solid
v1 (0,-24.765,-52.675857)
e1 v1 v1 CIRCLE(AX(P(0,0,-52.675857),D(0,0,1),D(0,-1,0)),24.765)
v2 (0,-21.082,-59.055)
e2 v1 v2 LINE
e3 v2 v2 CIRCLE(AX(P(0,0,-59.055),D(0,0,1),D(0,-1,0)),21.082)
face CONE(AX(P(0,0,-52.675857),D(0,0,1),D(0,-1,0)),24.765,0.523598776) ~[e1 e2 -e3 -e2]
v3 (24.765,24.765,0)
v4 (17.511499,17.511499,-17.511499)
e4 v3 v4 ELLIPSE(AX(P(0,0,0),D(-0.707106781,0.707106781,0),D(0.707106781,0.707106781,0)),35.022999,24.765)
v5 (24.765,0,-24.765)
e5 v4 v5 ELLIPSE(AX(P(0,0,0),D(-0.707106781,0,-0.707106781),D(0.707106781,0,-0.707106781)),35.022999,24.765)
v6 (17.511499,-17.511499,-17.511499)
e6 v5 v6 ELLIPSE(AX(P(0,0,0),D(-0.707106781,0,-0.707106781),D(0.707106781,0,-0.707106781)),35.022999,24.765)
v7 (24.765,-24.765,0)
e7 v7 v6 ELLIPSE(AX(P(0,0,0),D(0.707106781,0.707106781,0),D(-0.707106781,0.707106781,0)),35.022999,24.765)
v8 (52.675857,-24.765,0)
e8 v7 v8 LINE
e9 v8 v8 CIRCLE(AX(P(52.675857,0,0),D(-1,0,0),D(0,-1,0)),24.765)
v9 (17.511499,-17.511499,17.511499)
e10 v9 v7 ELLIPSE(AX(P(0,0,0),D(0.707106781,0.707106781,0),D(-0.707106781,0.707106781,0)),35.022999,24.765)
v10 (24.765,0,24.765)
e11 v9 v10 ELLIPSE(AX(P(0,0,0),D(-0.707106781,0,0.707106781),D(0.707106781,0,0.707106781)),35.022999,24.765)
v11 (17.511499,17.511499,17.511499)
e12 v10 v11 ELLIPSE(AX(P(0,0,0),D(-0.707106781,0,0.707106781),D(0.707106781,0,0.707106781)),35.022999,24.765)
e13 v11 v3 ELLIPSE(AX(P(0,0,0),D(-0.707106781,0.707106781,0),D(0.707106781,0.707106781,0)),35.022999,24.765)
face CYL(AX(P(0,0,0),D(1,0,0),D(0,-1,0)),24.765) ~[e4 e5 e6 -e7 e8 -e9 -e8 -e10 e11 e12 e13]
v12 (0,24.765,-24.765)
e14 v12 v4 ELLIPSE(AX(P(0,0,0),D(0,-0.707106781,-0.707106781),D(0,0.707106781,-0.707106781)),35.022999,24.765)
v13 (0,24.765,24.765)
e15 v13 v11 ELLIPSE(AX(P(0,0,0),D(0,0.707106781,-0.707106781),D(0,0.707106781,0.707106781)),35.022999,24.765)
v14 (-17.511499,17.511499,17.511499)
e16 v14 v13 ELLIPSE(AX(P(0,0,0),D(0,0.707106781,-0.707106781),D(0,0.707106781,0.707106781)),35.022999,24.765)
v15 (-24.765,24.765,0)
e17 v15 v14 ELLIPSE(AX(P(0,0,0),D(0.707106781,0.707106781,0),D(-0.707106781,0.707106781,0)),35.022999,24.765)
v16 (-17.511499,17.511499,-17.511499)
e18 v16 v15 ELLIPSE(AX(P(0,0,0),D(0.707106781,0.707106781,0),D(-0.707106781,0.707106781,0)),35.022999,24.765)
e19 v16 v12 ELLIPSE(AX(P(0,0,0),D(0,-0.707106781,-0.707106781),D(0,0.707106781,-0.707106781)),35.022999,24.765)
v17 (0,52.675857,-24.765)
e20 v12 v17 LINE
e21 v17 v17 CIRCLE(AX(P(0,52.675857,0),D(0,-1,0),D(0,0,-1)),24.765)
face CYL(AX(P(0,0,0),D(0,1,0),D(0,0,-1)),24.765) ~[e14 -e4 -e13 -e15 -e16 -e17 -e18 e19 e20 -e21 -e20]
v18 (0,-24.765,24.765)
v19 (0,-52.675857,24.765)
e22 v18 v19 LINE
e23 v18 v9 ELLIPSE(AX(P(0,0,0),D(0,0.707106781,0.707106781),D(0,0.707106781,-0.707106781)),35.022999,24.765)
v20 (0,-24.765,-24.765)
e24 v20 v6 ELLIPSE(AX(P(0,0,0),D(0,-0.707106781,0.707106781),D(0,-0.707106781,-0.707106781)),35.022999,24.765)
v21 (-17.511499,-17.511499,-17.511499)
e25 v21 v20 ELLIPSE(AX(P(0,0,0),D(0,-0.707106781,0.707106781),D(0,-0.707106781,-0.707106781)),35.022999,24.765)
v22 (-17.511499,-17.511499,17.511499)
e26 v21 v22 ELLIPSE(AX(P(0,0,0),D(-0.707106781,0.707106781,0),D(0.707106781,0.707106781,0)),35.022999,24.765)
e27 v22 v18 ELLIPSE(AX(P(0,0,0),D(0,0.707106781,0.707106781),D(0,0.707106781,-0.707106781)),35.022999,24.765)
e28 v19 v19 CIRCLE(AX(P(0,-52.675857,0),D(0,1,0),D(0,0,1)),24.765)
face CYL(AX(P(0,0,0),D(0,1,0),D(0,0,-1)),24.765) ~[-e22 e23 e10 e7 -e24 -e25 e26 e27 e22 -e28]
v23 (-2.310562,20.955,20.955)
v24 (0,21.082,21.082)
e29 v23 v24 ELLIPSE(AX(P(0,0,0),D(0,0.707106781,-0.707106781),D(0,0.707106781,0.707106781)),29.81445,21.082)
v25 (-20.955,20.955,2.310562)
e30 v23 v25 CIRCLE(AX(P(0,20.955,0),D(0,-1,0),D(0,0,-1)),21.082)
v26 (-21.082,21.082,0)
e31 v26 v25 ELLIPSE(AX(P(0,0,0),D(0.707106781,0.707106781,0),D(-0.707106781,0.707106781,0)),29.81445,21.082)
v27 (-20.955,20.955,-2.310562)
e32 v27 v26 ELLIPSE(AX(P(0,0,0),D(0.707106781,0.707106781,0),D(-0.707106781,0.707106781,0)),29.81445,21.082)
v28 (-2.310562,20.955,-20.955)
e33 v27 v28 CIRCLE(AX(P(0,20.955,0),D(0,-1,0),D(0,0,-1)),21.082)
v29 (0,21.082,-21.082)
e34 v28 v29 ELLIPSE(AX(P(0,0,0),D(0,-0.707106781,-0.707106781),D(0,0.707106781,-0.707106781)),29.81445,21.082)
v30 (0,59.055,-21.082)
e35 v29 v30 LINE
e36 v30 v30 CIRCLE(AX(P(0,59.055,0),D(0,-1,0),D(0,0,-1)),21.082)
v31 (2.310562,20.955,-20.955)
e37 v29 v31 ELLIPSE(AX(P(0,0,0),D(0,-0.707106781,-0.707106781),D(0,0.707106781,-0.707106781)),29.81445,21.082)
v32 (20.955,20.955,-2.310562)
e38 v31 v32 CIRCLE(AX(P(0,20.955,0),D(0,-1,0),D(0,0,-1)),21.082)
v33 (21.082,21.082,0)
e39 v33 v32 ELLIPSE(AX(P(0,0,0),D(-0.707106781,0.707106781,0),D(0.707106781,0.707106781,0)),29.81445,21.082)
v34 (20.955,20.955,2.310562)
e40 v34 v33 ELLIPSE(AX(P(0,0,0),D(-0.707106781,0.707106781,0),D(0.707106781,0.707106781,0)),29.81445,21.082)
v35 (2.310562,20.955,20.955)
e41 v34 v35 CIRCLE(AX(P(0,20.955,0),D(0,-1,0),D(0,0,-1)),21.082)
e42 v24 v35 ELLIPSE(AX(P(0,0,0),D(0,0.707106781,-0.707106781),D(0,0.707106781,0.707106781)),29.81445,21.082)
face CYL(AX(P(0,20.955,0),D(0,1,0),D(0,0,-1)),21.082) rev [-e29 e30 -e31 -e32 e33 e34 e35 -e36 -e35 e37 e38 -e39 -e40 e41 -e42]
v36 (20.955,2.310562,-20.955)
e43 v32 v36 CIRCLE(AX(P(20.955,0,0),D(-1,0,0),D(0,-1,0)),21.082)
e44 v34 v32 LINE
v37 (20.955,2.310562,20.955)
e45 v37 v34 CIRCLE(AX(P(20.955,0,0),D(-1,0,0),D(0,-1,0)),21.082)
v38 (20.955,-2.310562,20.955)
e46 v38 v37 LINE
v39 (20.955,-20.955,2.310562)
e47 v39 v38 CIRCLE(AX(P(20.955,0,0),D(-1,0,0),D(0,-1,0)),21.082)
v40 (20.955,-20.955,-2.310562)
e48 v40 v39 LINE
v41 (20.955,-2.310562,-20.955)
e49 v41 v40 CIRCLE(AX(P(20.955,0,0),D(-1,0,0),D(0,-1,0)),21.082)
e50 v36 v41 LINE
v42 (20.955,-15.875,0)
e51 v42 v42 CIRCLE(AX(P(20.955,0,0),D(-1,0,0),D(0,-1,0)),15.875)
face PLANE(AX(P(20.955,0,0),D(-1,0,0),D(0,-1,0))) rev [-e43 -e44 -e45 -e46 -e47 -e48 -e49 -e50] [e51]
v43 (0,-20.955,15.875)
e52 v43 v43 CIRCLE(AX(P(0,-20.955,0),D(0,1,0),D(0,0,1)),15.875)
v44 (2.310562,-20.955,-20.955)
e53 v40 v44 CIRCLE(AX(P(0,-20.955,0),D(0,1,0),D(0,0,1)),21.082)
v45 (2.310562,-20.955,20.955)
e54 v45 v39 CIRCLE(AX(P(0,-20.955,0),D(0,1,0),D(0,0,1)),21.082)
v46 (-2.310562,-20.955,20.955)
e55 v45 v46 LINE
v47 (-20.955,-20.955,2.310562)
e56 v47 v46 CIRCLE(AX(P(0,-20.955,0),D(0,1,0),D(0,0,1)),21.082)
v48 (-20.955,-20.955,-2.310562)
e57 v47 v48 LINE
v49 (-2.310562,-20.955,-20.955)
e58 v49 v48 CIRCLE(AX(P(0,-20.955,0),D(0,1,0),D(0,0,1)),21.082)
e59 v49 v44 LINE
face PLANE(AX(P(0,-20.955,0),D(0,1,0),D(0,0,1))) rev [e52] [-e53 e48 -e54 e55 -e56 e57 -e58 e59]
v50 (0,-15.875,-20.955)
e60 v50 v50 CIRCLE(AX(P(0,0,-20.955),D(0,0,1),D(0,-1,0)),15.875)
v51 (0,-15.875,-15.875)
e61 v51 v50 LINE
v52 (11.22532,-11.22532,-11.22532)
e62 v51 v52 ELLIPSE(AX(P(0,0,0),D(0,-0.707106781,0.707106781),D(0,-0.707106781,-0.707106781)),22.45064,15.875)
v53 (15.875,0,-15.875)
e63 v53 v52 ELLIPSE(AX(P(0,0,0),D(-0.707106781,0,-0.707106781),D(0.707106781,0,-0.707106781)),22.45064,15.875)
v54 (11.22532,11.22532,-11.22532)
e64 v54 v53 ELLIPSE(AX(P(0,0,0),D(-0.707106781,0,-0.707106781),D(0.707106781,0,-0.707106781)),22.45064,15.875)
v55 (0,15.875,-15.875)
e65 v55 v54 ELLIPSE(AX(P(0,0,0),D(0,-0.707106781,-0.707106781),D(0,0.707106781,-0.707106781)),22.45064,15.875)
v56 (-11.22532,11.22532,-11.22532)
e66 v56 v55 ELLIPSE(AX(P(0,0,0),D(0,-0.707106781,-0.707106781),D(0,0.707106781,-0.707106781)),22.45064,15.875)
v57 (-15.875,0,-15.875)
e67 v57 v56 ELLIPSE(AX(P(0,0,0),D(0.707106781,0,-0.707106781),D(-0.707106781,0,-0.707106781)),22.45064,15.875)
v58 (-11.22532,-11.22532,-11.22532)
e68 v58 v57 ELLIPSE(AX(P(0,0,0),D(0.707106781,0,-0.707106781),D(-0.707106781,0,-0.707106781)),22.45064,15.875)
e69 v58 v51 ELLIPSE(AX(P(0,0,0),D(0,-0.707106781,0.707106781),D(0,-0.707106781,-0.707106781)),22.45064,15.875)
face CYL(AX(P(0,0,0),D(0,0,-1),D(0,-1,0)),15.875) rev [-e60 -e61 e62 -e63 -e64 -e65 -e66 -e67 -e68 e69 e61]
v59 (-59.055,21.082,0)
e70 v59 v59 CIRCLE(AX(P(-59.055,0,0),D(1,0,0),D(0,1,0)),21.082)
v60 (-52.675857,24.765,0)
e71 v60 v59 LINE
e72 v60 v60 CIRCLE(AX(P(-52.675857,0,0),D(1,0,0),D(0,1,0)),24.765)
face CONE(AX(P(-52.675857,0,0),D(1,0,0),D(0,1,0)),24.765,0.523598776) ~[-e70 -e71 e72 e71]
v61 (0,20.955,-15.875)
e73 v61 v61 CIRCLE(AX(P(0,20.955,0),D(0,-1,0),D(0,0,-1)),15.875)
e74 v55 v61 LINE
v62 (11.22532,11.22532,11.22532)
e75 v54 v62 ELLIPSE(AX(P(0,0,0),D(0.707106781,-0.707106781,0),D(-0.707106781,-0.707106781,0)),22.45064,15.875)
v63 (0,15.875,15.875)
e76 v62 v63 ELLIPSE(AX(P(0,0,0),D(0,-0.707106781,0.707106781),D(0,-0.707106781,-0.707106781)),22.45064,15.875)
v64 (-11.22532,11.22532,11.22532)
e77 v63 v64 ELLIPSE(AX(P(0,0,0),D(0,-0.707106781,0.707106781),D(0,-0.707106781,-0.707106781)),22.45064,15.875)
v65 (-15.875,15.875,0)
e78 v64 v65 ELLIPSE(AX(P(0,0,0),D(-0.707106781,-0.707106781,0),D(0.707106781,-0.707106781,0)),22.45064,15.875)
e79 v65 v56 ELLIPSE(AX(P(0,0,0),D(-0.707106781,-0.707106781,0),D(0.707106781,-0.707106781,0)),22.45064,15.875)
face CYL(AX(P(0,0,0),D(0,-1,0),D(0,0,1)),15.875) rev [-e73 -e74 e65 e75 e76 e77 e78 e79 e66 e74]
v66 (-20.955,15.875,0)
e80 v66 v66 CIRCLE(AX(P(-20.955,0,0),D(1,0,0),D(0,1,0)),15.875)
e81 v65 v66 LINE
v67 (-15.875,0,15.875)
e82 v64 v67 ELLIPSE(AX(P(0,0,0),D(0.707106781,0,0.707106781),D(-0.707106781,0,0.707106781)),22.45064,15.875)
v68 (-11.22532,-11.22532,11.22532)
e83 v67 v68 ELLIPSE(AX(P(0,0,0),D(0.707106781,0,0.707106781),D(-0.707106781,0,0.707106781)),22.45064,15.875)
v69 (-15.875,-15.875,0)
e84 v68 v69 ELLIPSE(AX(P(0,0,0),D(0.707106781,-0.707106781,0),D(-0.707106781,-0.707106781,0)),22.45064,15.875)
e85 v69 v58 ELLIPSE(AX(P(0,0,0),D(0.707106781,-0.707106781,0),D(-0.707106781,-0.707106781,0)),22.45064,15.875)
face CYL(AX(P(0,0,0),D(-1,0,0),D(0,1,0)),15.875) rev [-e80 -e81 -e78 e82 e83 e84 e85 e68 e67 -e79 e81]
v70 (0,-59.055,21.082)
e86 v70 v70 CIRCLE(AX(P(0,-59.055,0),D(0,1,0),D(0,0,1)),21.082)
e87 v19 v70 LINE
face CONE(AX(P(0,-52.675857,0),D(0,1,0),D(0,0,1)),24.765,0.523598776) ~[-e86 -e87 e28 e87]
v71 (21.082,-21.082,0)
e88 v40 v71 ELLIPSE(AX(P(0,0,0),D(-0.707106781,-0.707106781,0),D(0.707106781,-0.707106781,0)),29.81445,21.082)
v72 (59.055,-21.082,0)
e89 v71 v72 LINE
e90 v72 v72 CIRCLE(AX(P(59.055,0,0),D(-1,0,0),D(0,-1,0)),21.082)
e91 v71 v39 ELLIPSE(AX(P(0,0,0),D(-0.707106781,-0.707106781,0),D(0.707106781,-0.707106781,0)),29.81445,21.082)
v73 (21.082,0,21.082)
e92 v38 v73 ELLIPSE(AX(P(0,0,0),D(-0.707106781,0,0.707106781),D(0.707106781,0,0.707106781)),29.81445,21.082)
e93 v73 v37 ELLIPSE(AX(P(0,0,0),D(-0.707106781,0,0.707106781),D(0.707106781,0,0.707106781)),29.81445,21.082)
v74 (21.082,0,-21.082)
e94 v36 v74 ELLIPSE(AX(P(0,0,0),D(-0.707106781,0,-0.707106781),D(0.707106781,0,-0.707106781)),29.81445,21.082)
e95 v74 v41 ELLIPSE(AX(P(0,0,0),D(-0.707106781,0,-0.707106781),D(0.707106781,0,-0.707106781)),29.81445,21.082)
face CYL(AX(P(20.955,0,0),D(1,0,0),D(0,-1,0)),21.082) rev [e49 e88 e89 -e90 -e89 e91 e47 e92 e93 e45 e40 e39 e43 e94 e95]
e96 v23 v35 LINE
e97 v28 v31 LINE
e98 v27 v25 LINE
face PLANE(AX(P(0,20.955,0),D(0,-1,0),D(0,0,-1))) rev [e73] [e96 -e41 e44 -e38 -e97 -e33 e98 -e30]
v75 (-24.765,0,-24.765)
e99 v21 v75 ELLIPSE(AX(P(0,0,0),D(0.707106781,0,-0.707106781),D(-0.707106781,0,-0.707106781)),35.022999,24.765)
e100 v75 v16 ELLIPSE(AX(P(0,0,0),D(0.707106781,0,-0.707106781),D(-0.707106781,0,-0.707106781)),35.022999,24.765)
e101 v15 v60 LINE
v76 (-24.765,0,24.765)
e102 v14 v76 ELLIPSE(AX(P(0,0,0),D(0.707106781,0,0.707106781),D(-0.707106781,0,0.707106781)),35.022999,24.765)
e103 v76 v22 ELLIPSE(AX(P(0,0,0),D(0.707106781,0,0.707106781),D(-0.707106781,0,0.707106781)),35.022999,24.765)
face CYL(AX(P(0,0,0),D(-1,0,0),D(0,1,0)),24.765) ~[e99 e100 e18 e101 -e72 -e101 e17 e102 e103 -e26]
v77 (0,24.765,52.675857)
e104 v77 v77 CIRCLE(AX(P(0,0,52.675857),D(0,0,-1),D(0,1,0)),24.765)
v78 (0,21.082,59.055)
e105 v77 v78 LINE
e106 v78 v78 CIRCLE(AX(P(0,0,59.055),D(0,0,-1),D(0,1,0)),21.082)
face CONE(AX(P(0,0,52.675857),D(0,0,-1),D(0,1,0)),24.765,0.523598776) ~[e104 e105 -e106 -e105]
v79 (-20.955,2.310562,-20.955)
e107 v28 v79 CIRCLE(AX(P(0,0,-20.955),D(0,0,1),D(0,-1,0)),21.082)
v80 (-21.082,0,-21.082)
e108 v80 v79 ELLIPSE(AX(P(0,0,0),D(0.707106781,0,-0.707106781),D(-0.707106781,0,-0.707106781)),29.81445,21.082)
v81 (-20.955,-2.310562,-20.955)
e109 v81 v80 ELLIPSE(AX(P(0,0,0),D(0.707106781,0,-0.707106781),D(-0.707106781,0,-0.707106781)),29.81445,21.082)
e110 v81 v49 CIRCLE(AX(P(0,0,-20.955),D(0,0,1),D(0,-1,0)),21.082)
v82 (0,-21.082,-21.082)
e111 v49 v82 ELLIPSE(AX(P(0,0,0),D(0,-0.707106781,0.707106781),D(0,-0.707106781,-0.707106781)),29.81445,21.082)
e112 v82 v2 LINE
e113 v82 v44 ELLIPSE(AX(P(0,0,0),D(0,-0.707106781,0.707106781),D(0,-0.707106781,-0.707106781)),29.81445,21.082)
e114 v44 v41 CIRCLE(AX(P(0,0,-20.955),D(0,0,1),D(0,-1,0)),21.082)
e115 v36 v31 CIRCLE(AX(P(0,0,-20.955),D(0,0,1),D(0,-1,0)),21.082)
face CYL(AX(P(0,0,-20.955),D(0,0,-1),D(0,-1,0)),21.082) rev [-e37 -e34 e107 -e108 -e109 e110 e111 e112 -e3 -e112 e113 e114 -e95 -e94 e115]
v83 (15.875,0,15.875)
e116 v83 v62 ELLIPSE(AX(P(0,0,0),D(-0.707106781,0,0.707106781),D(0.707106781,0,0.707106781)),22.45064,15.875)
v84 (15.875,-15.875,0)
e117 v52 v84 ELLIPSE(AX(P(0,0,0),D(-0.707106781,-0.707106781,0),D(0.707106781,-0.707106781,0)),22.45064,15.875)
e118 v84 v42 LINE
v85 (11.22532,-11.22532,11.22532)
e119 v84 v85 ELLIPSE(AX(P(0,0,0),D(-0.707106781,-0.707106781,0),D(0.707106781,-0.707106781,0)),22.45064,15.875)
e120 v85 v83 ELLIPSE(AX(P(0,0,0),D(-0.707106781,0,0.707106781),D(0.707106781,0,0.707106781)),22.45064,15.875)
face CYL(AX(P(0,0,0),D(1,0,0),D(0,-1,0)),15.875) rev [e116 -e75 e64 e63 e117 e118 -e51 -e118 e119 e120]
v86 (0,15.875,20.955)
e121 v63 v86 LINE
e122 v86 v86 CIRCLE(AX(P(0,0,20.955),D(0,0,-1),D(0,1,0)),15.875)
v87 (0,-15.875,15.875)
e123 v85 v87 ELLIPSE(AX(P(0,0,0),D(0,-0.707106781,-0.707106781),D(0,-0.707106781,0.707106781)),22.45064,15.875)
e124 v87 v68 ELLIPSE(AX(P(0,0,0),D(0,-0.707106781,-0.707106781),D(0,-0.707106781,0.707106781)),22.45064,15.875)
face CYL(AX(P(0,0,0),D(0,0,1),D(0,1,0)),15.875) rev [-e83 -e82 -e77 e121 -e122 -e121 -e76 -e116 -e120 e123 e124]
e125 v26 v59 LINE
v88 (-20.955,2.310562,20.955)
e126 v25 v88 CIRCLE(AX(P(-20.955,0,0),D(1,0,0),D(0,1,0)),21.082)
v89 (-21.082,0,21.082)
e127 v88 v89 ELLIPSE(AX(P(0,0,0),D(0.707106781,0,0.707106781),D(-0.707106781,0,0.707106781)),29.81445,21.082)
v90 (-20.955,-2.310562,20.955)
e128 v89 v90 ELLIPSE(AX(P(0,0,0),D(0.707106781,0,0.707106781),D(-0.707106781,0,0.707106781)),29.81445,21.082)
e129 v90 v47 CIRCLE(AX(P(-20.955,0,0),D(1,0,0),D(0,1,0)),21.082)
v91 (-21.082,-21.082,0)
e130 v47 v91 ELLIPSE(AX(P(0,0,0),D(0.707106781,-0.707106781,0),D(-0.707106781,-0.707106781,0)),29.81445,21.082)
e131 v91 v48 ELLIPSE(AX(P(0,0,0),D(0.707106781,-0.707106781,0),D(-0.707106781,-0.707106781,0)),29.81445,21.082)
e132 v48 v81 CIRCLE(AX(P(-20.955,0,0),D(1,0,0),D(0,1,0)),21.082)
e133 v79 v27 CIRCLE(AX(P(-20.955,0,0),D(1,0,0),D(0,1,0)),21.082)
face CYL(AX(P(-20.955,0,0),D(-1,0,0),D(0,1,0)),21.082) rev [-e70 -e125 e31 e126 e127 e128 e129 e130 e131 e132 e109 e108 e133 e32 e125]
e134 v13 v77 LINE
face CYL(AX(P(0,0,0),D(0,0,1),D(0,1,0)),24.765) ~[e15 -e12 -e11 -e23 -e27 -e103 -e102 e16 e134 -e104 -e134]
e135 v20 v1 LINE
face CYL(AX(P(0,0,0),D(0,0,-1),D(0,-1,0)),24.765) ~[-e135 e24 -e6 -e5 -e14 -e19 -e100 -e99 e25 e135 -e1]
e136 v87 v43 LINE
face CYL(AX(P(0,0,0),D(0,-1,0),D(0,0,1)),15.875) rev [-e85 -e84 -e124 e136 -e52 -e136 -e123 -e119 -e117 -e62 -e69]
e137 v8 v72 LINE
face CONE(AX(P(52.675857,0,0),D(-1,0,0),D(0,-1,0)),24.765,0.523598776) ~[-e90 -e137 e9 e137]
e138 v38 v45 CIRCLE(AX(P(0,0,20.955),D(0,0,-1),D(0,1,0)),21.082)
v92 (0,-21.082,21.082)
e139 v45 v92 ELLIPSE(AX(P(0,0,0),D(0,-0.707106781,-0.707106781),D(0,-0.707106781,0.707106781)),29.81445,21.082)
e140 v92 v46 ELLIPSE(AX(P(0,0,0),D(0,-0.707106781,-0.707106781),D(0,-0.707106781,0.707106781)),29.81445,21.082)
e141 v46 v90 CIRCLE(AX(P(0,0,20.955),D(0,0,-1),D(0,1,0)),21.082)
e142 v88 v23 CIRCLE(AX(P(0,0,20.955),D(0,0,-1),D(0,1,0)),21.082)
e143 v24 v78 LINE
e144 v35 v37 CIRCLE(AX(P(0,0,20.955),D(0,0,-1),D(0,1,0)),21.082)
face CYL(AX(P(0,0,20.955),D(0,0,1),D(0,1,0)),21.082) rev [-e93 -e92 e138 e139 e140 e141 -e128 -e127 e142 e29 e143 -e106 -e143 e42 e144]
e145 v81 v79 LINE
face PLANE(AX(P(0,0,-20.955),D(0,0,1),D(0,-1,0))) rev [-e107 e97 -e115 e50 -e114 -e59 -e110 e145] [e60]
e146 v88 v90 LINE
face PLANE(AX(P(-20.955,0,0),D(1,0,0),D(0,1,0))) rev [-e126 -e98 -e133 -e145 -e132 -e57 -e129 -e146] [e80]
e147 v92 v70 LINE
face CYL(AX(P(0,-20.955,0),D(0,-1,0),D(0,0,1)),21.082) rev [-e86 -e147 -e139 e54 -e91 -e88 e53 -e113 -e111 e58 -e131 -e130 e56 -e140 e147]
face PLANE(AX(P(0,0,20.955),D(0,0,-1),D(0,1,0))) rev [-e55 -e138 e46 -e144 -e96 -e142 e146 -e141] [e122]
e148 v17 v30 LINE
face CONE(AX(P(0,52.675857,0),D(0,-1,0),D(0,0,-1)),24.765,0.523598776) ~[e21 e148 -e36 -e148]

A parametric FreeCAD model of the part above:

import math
import FreeCAD as App
import Part
import Sketcher
Q = App.Units.Quantity

doc = App.newDocument("Part")
body = doc.addObject("PartDesign::Body", "Body")

sketch1 = body.newObject("Sketcher::SketchObject", "Sketch")
sketch1.AttachmentSupport = (doc.getObject("YZ_Plane"), [""])
sketch1.MapMode = "FlatFace"
sketch1.addGeometry([
    Part.LineSegment(App.Vector(-53, 25, 0), App.Vector(-59, 21, 0)),
    Part.LineSegment(App.Vector(-59, 21, 0), App.Vector(-59, 0, 0)),
    Part.LineSegment(App.Vector(-59, 0, 0), App.Vector(25, 0, 0)),
    Part.ArcOfCircle(Part.Circle(App.Vector(0, 0, 0), App.Vector(0, 0, 1), 25), math.radians(0), math.radians(90)),
    Part.LineSegment(App.Vector(0, 25, 0), App.Vector(-53, 25, 0)),
], False)
sketch1.addConstraint([
    Sketcher.Constraint("Coincident", 0, 2, 1, 1),
    Sketcher.Constraint("Coincident", 1, 2, 2, 1),
    Sketcher.Constraint("Coincident", 2, 2, 3, 1),
    Sketcher.Constraint("Tangent", 3, 2, 4, 1),
    Sketcher.Constraint("Coincident", 4, 2, 0, 1),
    Sketcher.Constraint("Vertical", 1),
    Sketcher.Constraint("Horizontal", 2),
    Sketcher.Constraint("Horizontal", 4),
    Sketcher.Constraint("Coincident", 3, 3, -1, 1),
    Sketcher.Constraint("PointOnObject", 1, 2, -1),
    Sketcher.Constraint("DistanceX", 2, 1, 2, 2, Q("3.3 in")),
    Sketcher.Constraint("Angle", 0, Q("-150 deg")),
    Sketcher.Constraint("Radius", 3, Q("0.975 in")),
    Sketcher.Constraint("DistanceY", 1, 2, 1, 1, Q("0.83 in")),
])
revolution = body.newObject("PartDesign::Revolution", "Revolution")
revolution.Profile = sketch1
revolution.ReferenceAxis = (sketch1, ["H_Axis"])
revolution.Angle = 360

sketch2 = body.newObject("Sketcher::SketchObject", "Sketch001")
sketch2.AttachmentSupport = (doc.getObject("YZ_Plane"), [""])
sketch2.MapMode = "FlatFace"
sketch2.addGeometry([
    Part.LineSegment(App.Vector(-25, -53, 0), App.Vector(-21, -59, 0)),
    Part.LineSegment(App.Vector(-21, -59, 0), App.Vector(0, -59, 0)),
    Part.LineSegment(App.Vector(0, -59, 0), App.Vector(0, 25, 0)),
    Part.ArcOfCircle(Part.Circle(App.Vector(0, 0, 0), App.Vector(0, 0, 1), 25), math.radians(90), math.radians(180)),
    Part.LineSegment(App.Vector(-25, 0, 0), App.Vector(-25, -53, 0)),
], False)
sketch2.addConstraint([
    Sketcher.Constraint("Coincident", 0, 2, 1, 1),
    Sketcher.Constraint("Coincident", 1, 2, 2, 1),
    Sketcher.Constraint("Coincident", 2, 2, 3, 1),
    Sketcher.Constraint("Tangent", 3, 2, 4, 1),
    Sketcher.Constraint("Coincident", 4, 2, 0, 1),
    Sketcher.Constraint("Horizontal", 1),
    Sketcher.Constraint("Vertical", 2),
    Sketcher.Constraint("Vertical", 4),
    Sketcher.Constraint("Coincident", 3, 3, -1, 1),
    Sketcher.Constraint("PointOnObject", 1, 2, -2),
    Sketcher.Constraint("DistanceY", 2, 1, 2, 2, Q("3.3 in")),
    Sketcher.Constraint("Angle", 0, Q("-60 deg")),
    Sketcher.Constraint("Radius", 3, Q("0.975 in")),
    Sketcher.Constraint("DistanceX", 1, 1, 1, 2, Q("0.83 in")),
])
revolution2 = body.newObject("PartDesign::Revolution", "Revolution001")
revolution2.Profile = sketch2
revolution2.ReferenceAxis = (sketch2, ["V_Axis"])
revolution2.Angle = 360

sketch3 = body.newObject("Sketcher::SketchObject", "Sketch002")
sketch3.AttachmentSupport = (doc.getObject("YZ_Plane"), [""])
sketch3.MapMode = "FlatFace"
sketch3.addGeometry([
    Part.LineSegment(App.Vector(53, -25, 0), App.Vector(59, -21, 0)),
    Part.LineSegment(App.Vector(59, -21, 0), App.Vector(59, 0, 0)),
    Part.LineSegment(App.Vector(59, 0, 0), App.Vector(-25, 0, 0)),
    Part.ArcOfCircle(Part.Circle(App.Vector(0, 0, 0), App.Vector(0, 0, 1), 25), math.radians(180), math.radians(270)),
    Part.LineSegment(App.Vector(0, -25, 0), App.Vector(53, -25, 0)),
], False)
sketch3.addConstraint([
    Sketcher.Constraint("Coincident", 0, 2, 1, 1),
    Sketcher.Constraint("Coincident", 1, 2, 2, 1),
    Sketcher.Constraint("Coincident", 2, 2, 3, 1),
    Sketcher.Constraint("Tangent", 3, 2, 4, 1),
    Sketcher.Constraint("Coincident", 4, 2, 0, 1),
    Sketcher.Constraint("Vertical", 1),
    Sketcher.Constraint("Horizontal", 2),
    Sketcher.Constraint("Horizontal", 4),
    Sketcher.Constraint("Coincident", 3, 3, -1, 1),
    Sketcher.Constraint("PointOnObject", 1, 2, -1),
    Sketcher.Constraint("DistanceX", 2, 2, 2, 1, Q("3.3 in")),
    Sketcher.Constraint("Angle", 0, Q("30 deg")),
    Sketcher.Constraint("Radius", 3, Q("0.975 in")),
    Sketcher.Constraint("DistanceY", 1, 1, 1, 2, Q("0.83 in")),
])
revolution3 = body.newObject("PartDesign::Revolution", "Revolution002")
revolution3.Profile = sketch3
revolution3.ReferenceAxis = (sketch3, ["H_Axis"])
revolution3.Angle = 360

sketch4 = body.newObject("Sketcher::SketchObject", "Sketch003")
sketch4.AttachmentSupport = (doc.getObject("YZ_Plane"), [""])
sketch4.MapMode = "FlatFace"
sketch4.addGeometry([
    Part.LineSegment(App.Vector(25, 53, 0), App.Vector(21, 59, 0)),
    Part.LineSegment(App.Vector(21, 59, 0), App.Vector(0, 59, 0)),
    Part.LineSegment(App.Vector(0, 59, 0), App.Vector(0, -25, 0)),
    Part.ArcOfCircle(Part.Circle(App.Vector(0, 0, 0), App.Vector(0, 0, 1), 25), math.radians(-90), math.radians(0)),
    Part.LineSegment(App.Vector(25, 0, 0), App.Vector(25, 53, 0)),
], False)
sketch4.addConstraint([
    Sketcher.Constraint("Coincident", 0, 2, 1, 1),
    Sketcher.Constraint("Coincident", 1, 2, 2, 1),
    Sketcher.Constraint("Coincident", 2, 2, 3, 1),
    Sketcher.Constraint("Tangent", 3, 2, 4, 1),
    Sketcher.Constraint("Coincident", 4, 2, 0, 1),
    Sketcher.Constraint("Horizontal", 1),
    Sketcher.Constraint("Vertical", 2),
    Sketcher.Constraint("Vertical", 4),
    Sketcher.Constraint("Coincident", 3, 3, -1, 1),
    Sketcher.Constraint("PointOnObject", 1, 2, -2),
    Sketcher.Constraint("DistanceY", 2, 2, 2, 1, Q("3.3 in")),
    Sketcher.Constraint("Angle", 0, Q("120 deg")),
    Sketcher.Constraint("Radius", 3, Q("0.975 in")),
    Sketcher.Constraint("DistanceX", 1, 2, 1, 1, Q("0.83 in")),
])
revolution4 = body.newObject("PartDesign::Revolution", "Revolution003")
revolution4.Profile = sketch4
revolution4.ReferenceAxis = (sketch4, ["V_Axis"])
revolution4.Angle = 360

sketch5 = body.newObject("Sketcher::SketchObject", "Sketch004")
sketch5.AttachmentSupport = (doc.getObject("XY_Plane"), [""])
sketch5.MapMode = "FlatFace"
sketch5.addGeometry([
    Part.LineSegment(App.Vector(-53, 25, 0), App.Vector(-59, 21, 0)),
    Part.LineSegment(App.Vector(-59, 21, 0), App.Vector(-59, 0, 0)),
    Part.LineSegment(App.Vector(-59, 0, 0), App.Vector(25, 0, 0)),
    Part.ArcOfCircle(Part.Circle(App.Vector(0, 0, 0), App.Vector(0, 0, 1), 25), math.radians(0), math.radians(90)),
    Part.LineSegment(App.Vector(0, 25, 0), App.Vector(-53, 25, 0)),
], False)
sketch5.addConstraint([
    Sketcher.Constraint("Coincident", 0, 2, 1, 1),
    Sketcher.Constraint("Coincident", 1, 2, 2, 1),
    Sketcher.Constraint("Coincident", 2, 2, 3, 1),
    Sketcher.Constraint("Tangent", 3, 2, 4, 1),
    Sketcher.Constraint("Coincident", 4, 2, 0, 1),
    Sketcher.Constraint("Vertical", 1),
    Sketcher.Constraint("Horizontal", 2),
    Sketcher.Constraint("Horizontal", 4),
    Sketcher.Constraint("Coincident", 3, 3, -1, 1),
    Sketcher.Constraint("PointOnObject", 1, 2, -1),
    Sketcher.Constraint("DistanceX", 2, 1, 2, 2, Q("3.3 in")),
    Sketcher.Constraint("Angle", 0, Q("-150 deg")),
    Sketcher.Constraint("Radius", 3, Q("0.975 in")),
    Sketcher.Constraint("DistanceY", 1, 2, 1, 1, Q("0.83 in")),
])
revolution5 = body.newObject("PartDesign::Revolution", "Revolution004")
revolution5.Profile = sketch5
revolution5.ReferenceAxis = (sketch5, ["H_Axis"])
revolution5.Angle = 360

sketch6 = body.newObject("Sketcher::SketchObject", "Sketch005")
sketch6.AttachmentSupport = (doc.getObject("XY_Plane"), [""])
sketch6.MapMode = "FlatFace"
sketch6.addGeometry([
    Part.LineSegment(App.Vector(53, -25, 0), App.Vector(59, -21, 0)),
    Part.LineSegment(App.Vector(59, -21, 0), App.Vector(59, 0, 0)),
    Part.LineSegment(App.Vector(59, 0, 0), App.Vector(-25, 0, 0)),
    Part.ArcOfCircle(Part.Circle(App.Vector(0, 0, 0), App.Vector(0, 0, 1), 25), math.radians(180), math.radians(270)),
    Part.LineSegment(App.Vector(0, -25, 0), App.Vector(53, -25, 0)),
], False)
sketch6.addConstraint([
    Sketcher.Constraint("Coincident", 0, 2, 1, 1),
    Sketcher.Constraint("Coincident", 1, 2, 2, 1),
    Sketcher.Constraint("Coincident", 2, 2, 3, 1),
    Sketcher.Constraint("Tangent", 3, 2, 4, 1),
    Sketcher.Constraint("Coincident", 4, 2, 0, 1),
    Sketcher.Constraint("Vertical", 1),
    Sketcher.Constraint("Horizontal", 2),
    Sketcher.Constraint("Horizontal", 4),
    Sketcher.Constraint("Coincident", 3, 3, -1, 1),
    Sketcher.Constraint("PointOnObject", 1, 2, -1),
    Sketcher.Constraint("DistanceX", 2, 2, 2, 1, Q("3.3 in")),
    Sketcher.Constraint("Angle", 0, Q("30 deg")),
    Sketcher.Constraint("Radius", 3, Q("0.975 in")),
    Sketcher.Constraint("DistanceY", 1, 1, 1, 2, Q("0.83 in")),
])
revolution6 = body.newObject("PartDesign::Revolution", "Revolution005")
revolution6.Profile = sketch6
revolution6.ReferenceAxis = (sketch6, ["H_Axis"])
revolution6.Angle = 360

sketch7 = body.newObject("Sketcher::SketchObject", "Sketch006")
sketch7.AttachmentSupport = (doc.getObject("YZ_Plane"), [""])
sketch7.MapMode = "FlatFace"
sketch7.addGeometry([
    Part.LineSegment(App.Vector(-21, 21, 0), App.Vector(-59, 21, 0)),
    Part.LineSegment(App.Vector(-59, 21, 0), App.Vector(-59, 0, 0)),
    Part.LineSegment(App.Vector(-59, 0, 0), App.Vector(16, 0, 0)),
    Part.ArcOfCircle(Part.Circle(App.Vector(0, 0, 0), App.Vector(0, 0, 1), 16), math.radians(0), math.radians(90)),
    Part.LineSegment(App.Vector(0, 16, 0), App.Vector(-21, 16, 0)),
    Part.LineSegment(App.Vector(-21, 16, 0), App.Vector(-21, 21, 0)),
], False)
sketch7.addConstraint([
    Sketcher.Constraint("Coincident", 0, 2, 1, 1),
    Sketcher.Constraint("Coincident", 1, 2, 2, 1),
    Sketcher.Constraint("Coincident", 2, 2, 3, 1),
    Sketcher.Constraint("Tangent", 3, 2, 4, 1),
    Sketcher.Constraint("Coincident", 4, 2, 5, 1),
    Sketcher.Constraint("Coincident", 5, 2, 0, 1),
    Sketcher.Constraint("Horizontal", 0),
    Sketcher.Constraint("Vertical", 1),
    Sketcher.Constraint("Horizontal", 2),
    Sketcher.Constraint("Horizontal", 4),
    Sketcher.Constraint("Vertical", 5),
    Sketcher.Constraint("Coincident", 3, 3, -1, 1),
    Sketcher.Constraint("PointOnObject", 1, 2, -1),
    Sketcher.Constraint("DistanceX", 0, 2, 0, 1, Q("1.5 in")),
    Sketcher.Constraint("Radius", 3, Q("0.625 in")),
    Sketcher.Constraint("DistanceX", 2, 1, 2, 2, Q("2.95 in")),
    Sketcher.Constraint("DistanceY", 1, 2, 1, 1, Q("0.83 in")),
])
groove = body.newObject("PartDesign::Groove", "Groove")
groove.Profile = sketch7
groove.ReferenceAxis = (sketch7, ["H_Axis"])
groove.Angle = 360

sketch8 = body.newObject("Sketcher::SketchObject", "Sketch007")
sketch8.AttachmentSupport = (doc.getObject("YZ_Plane"), [""])
sketch8.MapMode = "FlatFace"
sketch8.addGeometry([
    Part.LineSegment(App.Vector(-21, -21, 0), App.Vector(-21, -59, 0)),
    Part.LineSegment(App.Vector(-21, -59, 0), App.Vector(0, -59, 0)),
    Part.LineSegment(App.Vector(0, -59, 0), App.Vector(0, 16, 0)),
    Part.ArcOfCircle(Part.Circle(App.Vector(0, 0, 0), App.Vector(0, 0, 1), 16), math.radians(90), math.radians(180)),
    Part.LineSegment(App.Vector(-16, 0, 0), App.Vector(-16, -21, 0)),
    Part.LineSegment(App.Vector(-16, -21, 0), App.Vector(-21, -21, 0)),
], False)
sketch8.addConstraint([
    Sketcher.Constraint("Coincident", 0, 2, 1, 1),
    Sketcher.Constraint("Coincident", 1, 2, 2, 1),
    Sketcher.Constraint("Coincident", 2, 2, 3, 1),
    Sketcher.Constraint("Tangent", 3, 2, 4, 1),
    Sketcher.Constraint("Coincident", 4, 2, 5, 1),
    Sketcher.Constraint("Coincident", 5, 2, 0, 1),
    Sketcher.Constraint("Vertical", 0),
    Sketcher.Constraint("Horizontal", 1),
    Sketcher.Constraint("Vertical", 2),
    Sketcher.Constraint("Vertical", 4),
    Sketcher.Constraint("Horizontal", 5),
    Sketcher.Constraint("Coincident", 3, 3, -1, 1),
    Sketcher.Constraint("PointOnObject", 1, 2, -2),
    Sketcher.Constraint("DistanceY", 0, 2, 0, 1, Q("1.5 in")),
    Sketcher.Constraint("Radius", 3, Q("0.625 in")),
    Sketcher.Constraint("DistanceX", 1, 1, 1, 2, Q("0.83 in")),
    Sketcher.Constraint("DistanceY", 2, 1, 2, 2, Q("2.95 in")),
])
groove2 = body.newObject("PartDesign::Groove", "Groove001")
groove2.Profile = sketch8
groove2.ReferenceAxis = (sketch8, ["V_Axis"])
groove2.Angle = 360

sketch9 = body.newObject("Sketcher::SketchObject", "Sketch008")
sketch9.AttachmentSupport = (doc.getObject("YZ_Plane"), [""])
sketch9.MapMode = "FlatFace"
sketch9.addGeometry([
    Part.LineSegment(App.Vector(21, -21, 0), App.Vector(59, -21, 0)),
    Part.LineSegment(App.Vector(59, -21, 0), App.Vector(59, 0, 0)),
    Part.LineSegment(App.Vector(59, 0, 0), App.Vector(-16, 0, 0)),
    Part.ArcOfCircle(Part.Circle(App.Vector(0, 0, 0), App.Vector(0, 0, 1), 16), math.radians(180), math.radians(270)),
    Part.LineSegment(App.Vector(0, -16, 0), App.Vector(21, -16, 0)),
    Part.LineSegment(App.Vector(21, -16, 0), App.Vector(21, -21, 0)),
], False)
sketch9.addConstraint([
    Sketcher.Constraint("Coincident", 0, 2, 1, 1),
    Sketcher.Constraint("Coincident", 1, 2, 2, 1),
    Sketcher.Constraint("Coincident", 2, 2, 3, 1),
    Sketcher.Constraint("Tangent", 3, 2, 4, 1),
    Sketcher.Constraint("Coincident", 4, 2, 5, 1),
    Sketcher.Constraint("Coincident", 5, 2, 0, 1),
    Sketcher.Constraint("Horizontal", 0),
    Sketcher.Constraint("Vertical", 1),
    Sketcher.Constraint("Horizontal", 2),
    Sketcher.Constraint("Horizontal", 4),
    Sketcher.Constraint("Vertical", 5),
    Sketcher.Constraint("Coincident", 3, 3, -1, 1),
    Sketcher.Constraint("PointOnObject", 1, 2, -1),
    Sketcher.Constraint("DistanceX", 0, 1, 0, 2, Q("1.5 in")),
    Sketcher.Constraint("Radius", 3, Q("0.625 in")),
    Sketcher.Constraint("DistanceX", 2, 2, 2, 1, Q("2.95 in")),
    Sketcher.Constraint("DistanceY", 1, 1, 1, 2, Q("0.83 in")),
])
groove3 = body.newObject("PartDesign::Groove", "Groove002")
groove3.Profile = sketch9
groove3.ReferenceAxis = (sketch9, ["H_Axis"])
groove3.Angle = 360

sketch10 = body.newObject("Sketcher::SketchObject", "Sketch009")
sketch10.AttachmentSupport = (doc.getObject("YZ_Plane"), [""])
sketch10.MapMode = "FlatFace"
sketch10.addGeometry([
    Part.LineSegment(App.Vector(21, 21, 0), App.Vector(21, 59, 0)),
    Part.LineSegment(App.Vector(21, 59, 0), App.Vector(0, 59, 0)),
    Part.LineSegment(App.Vector(0, 59, 0), App.Vector(0, -16, 0)),
    Part.ArcOfCircle(Part.Circle(App.Vector(0, 0, 0), App.Vector(0, 0, 1), 16), math.radians(-90), math.radians(0)),
    Part.LineSegment(App.Vector(16, 0, 0), App.Vector(16, 21, 0)),
    Part.LineSegment(App.Vector(16, 21, 0), App.Vector(21, 21, 0)),
], False)
sketch10.addConstraint([
    Sketcher.Constraint("Coincident", 0, 2, 1, 1),
    Sketcher.Constraint("Coincident", 1, 2, 2, 1),
    Sketcher.Constraint("Coincident", 2, 2, 3, 1),
    Sketcher.Constraint("Tangent", 3, 2, 4, 1),
    Sketcher.Constraint("Coincident", 4, 2, 5, 1),
    Sketcher.Constraint("Coincident", 5, 2, 0, 1),
    Sketcher.Constraint("Vertical", 0),
    Sketcher.Constraint("Horizontal", 1),
    Sketcher.Constraint("Vertical", 2),
    Sketcher.Constraint("Vertical", 4),
    Sketcher.Constraint("Horizontal", 5),
    Sketcher.Constraint("Coincident", 3, 3, -1, 1),
    Sketcher.Constraint("PointOnObject", 1, 2, -2),
    Sketcher.Constraint("DistanceY", 0, 1, 0, 2, Q("1.5 in")),
    Sketcher.Constraint("Radius", 3, Q("0.625 in")),
    Sketcher.Constraint("DistanceX", 1, 2, 1, 1, Q("0.83 in")),
    Sketcher.Constraint("DistanceY", 2, 2, 2, 1, Q("2.95 in")),
])
groove4 = body.newObject("PartDesign::Groove", "Groove003")
groove4.Profile = sketch10
groove4.ReferenceAxis = (sketch10, ["V_Axis"])
groove4.Angle = 360

sketch11 = body.newObject("Sketcher::SketchObject", "Sketch010")
sketch11.AttachmentSupport = (doc.getObject("XY_Plane"), [""])
sketch11.MapMode = "FlatFace"
sketch11.addGeometry([
    Part.LineSegment(App.Vector(-21, 21, 0), App.Vector(-59, 21, 0)),
    Part.LineSegment(App.Vector(-59, 21, 0), App.Vector(-59, 0, 0)),
    Part.LineSegment(App.Vector(-59, 0, 0), App.Vector(16, 0, 0)),
    Part.ArcOfCircle(Part.Circle(App.Vector(0, 0, 0), App.Vector(0, 0, 1), 16), math.radians(0), math.radians(90)),
    Part.LineSegment(App.Vector(0, 16, 0), App.Vector(-21, 16, 0)),
    Part.LineSegment(App.Vector(-21, 16, 0), App.Vector(-21, 21, 0)),
], False)
sketch11.addConstraint([
    Sketcher.Constraint("Coincident", 0, 2, 1, 1),
    Sketcher.Constraint("Coincident", 1, 2, 2, 1),
    Sketcher.Constraint("Coincident", 2, 2, 3, 1),
    Sketcher.Constraint("Tangent", 3, 2, 4, 1),
    Sketcher.Constraint("Coincident", 4, 2, 5, 1),
    Sketcher.Constraint("Coincident", 5, 2, 0, 1),
    Sketcher.Constraint("Horizontal", 0),
    Sketcher.Constraint("Vertical", 1),
    Sketcher.Constraint("Horizontal", 2),
    Sketcher.Constraint("Horizontal", 4),
    Sketcher.Constraint("Vertical", 5),
    Sketcher.Constraint("Coincident", 3, 3, -1, 1),
    Sketcher.Constraint("PointOnObject", 1, 2, -1),
    Sketcher.Constraint("DistanceX", 0, 2, 0, 1, Q("1.5 in")),
    Sketcher.Constraint("Radius", 3, Q("0.625 in")),
    Sketcher.Constraint("DistanceX", 2, 1, 2, 2, Q("2.95 in")),
    Sketcher.Constraint("DistanceY", 1, 2, 1, 1, Q("0.83 in")),
])
groove5 = body.newObject("PartDesign::Groove", "Groove004")
groove5.Profile = sketch11
groove5.ReferenceAxis = (sketch11, ["H_Axis"])
groove5.Angle = 360

sketch12 = body.newObject("Sketcher::SketchObject", "Sketch011")
sketch12.AttachmentSupport = (doc.getObject("XY_Plane"), [""])
sketch12.MapMode = "FlatFace"
sketch12.addGeometry([
    Part.LineSegment(App.Vector(21, -21, 0), App.Vector(59, -21, 0)),
    Part.LineSegment(App.Vector(59, -21, 0), App.Vector(59, 0, 0)),
    Part.LineSegment(App.Vector(59, 0, 0), App.Vector(0, 0, 0)),
    Part.LineSegment(App.Vector(0, 0, 0), App.Vector(0, -16, 0)),
    Part.LineSegment(App.Vector(0, -16, 0), App.Vector(21, -16, 0)),
    Part.LineSegment(App.Vector(21, -16, 0), App.Vector(21, -21, 0)),
], False)
sketch12.addConstraint([
    Sketcher.Constraint("Coincident", 0, 2, 1, 1),
    Sketcher.Constraint("Coincident", 1, 2, 2, 1),
    Sketcher.Constraint("Coincident", 2, 2, 3, 1),
    Sketcher.Constraint("Coincident", 3, 2, 4, 1),
    Sketcher.Constraint("Coincident", 4, 2, 5, 1),
    Sketcher.Constraint("Coincident", 5, 2, 0, 1),
    Sketcher.Constraint("Horizontal", 0),
    Sketcher.Constraint("Vertical", 1),
    Sketcher.Constraint("Horizontal", 2),
    Sketcher.Constraint("Vertical", 3),
    Sketcher.Constraint("Horizontal", 4),
    Sketcher.Constraint("Vertical", 5),
    Sketcher.Constraint("Coincident", 2, 2, -1, 1),
    Sketcher.Constraint("DistanceX", 0, 1, 0, 2, Q("1.5 in")),
    Sketcher.Constraint("DistanceY", 1, 1, 1, 2, Q("0.83 in")),
    Sketcher.Constraint("DistanceX", 2, 2, 2, 1, Q("2.325 in")),
    Sketcher.Constraint("DistanceY", 3, 2, 3, 1, Q("0.625 in")),
])
groove6 = body.newObject("PartDesign::Groove", "Groove005")
groove6.Profile = sketch12
groove6.ReferenceAxis = (sketch12, ["H_Axis"])
groove6.Angle = 360

doc.recompute()
